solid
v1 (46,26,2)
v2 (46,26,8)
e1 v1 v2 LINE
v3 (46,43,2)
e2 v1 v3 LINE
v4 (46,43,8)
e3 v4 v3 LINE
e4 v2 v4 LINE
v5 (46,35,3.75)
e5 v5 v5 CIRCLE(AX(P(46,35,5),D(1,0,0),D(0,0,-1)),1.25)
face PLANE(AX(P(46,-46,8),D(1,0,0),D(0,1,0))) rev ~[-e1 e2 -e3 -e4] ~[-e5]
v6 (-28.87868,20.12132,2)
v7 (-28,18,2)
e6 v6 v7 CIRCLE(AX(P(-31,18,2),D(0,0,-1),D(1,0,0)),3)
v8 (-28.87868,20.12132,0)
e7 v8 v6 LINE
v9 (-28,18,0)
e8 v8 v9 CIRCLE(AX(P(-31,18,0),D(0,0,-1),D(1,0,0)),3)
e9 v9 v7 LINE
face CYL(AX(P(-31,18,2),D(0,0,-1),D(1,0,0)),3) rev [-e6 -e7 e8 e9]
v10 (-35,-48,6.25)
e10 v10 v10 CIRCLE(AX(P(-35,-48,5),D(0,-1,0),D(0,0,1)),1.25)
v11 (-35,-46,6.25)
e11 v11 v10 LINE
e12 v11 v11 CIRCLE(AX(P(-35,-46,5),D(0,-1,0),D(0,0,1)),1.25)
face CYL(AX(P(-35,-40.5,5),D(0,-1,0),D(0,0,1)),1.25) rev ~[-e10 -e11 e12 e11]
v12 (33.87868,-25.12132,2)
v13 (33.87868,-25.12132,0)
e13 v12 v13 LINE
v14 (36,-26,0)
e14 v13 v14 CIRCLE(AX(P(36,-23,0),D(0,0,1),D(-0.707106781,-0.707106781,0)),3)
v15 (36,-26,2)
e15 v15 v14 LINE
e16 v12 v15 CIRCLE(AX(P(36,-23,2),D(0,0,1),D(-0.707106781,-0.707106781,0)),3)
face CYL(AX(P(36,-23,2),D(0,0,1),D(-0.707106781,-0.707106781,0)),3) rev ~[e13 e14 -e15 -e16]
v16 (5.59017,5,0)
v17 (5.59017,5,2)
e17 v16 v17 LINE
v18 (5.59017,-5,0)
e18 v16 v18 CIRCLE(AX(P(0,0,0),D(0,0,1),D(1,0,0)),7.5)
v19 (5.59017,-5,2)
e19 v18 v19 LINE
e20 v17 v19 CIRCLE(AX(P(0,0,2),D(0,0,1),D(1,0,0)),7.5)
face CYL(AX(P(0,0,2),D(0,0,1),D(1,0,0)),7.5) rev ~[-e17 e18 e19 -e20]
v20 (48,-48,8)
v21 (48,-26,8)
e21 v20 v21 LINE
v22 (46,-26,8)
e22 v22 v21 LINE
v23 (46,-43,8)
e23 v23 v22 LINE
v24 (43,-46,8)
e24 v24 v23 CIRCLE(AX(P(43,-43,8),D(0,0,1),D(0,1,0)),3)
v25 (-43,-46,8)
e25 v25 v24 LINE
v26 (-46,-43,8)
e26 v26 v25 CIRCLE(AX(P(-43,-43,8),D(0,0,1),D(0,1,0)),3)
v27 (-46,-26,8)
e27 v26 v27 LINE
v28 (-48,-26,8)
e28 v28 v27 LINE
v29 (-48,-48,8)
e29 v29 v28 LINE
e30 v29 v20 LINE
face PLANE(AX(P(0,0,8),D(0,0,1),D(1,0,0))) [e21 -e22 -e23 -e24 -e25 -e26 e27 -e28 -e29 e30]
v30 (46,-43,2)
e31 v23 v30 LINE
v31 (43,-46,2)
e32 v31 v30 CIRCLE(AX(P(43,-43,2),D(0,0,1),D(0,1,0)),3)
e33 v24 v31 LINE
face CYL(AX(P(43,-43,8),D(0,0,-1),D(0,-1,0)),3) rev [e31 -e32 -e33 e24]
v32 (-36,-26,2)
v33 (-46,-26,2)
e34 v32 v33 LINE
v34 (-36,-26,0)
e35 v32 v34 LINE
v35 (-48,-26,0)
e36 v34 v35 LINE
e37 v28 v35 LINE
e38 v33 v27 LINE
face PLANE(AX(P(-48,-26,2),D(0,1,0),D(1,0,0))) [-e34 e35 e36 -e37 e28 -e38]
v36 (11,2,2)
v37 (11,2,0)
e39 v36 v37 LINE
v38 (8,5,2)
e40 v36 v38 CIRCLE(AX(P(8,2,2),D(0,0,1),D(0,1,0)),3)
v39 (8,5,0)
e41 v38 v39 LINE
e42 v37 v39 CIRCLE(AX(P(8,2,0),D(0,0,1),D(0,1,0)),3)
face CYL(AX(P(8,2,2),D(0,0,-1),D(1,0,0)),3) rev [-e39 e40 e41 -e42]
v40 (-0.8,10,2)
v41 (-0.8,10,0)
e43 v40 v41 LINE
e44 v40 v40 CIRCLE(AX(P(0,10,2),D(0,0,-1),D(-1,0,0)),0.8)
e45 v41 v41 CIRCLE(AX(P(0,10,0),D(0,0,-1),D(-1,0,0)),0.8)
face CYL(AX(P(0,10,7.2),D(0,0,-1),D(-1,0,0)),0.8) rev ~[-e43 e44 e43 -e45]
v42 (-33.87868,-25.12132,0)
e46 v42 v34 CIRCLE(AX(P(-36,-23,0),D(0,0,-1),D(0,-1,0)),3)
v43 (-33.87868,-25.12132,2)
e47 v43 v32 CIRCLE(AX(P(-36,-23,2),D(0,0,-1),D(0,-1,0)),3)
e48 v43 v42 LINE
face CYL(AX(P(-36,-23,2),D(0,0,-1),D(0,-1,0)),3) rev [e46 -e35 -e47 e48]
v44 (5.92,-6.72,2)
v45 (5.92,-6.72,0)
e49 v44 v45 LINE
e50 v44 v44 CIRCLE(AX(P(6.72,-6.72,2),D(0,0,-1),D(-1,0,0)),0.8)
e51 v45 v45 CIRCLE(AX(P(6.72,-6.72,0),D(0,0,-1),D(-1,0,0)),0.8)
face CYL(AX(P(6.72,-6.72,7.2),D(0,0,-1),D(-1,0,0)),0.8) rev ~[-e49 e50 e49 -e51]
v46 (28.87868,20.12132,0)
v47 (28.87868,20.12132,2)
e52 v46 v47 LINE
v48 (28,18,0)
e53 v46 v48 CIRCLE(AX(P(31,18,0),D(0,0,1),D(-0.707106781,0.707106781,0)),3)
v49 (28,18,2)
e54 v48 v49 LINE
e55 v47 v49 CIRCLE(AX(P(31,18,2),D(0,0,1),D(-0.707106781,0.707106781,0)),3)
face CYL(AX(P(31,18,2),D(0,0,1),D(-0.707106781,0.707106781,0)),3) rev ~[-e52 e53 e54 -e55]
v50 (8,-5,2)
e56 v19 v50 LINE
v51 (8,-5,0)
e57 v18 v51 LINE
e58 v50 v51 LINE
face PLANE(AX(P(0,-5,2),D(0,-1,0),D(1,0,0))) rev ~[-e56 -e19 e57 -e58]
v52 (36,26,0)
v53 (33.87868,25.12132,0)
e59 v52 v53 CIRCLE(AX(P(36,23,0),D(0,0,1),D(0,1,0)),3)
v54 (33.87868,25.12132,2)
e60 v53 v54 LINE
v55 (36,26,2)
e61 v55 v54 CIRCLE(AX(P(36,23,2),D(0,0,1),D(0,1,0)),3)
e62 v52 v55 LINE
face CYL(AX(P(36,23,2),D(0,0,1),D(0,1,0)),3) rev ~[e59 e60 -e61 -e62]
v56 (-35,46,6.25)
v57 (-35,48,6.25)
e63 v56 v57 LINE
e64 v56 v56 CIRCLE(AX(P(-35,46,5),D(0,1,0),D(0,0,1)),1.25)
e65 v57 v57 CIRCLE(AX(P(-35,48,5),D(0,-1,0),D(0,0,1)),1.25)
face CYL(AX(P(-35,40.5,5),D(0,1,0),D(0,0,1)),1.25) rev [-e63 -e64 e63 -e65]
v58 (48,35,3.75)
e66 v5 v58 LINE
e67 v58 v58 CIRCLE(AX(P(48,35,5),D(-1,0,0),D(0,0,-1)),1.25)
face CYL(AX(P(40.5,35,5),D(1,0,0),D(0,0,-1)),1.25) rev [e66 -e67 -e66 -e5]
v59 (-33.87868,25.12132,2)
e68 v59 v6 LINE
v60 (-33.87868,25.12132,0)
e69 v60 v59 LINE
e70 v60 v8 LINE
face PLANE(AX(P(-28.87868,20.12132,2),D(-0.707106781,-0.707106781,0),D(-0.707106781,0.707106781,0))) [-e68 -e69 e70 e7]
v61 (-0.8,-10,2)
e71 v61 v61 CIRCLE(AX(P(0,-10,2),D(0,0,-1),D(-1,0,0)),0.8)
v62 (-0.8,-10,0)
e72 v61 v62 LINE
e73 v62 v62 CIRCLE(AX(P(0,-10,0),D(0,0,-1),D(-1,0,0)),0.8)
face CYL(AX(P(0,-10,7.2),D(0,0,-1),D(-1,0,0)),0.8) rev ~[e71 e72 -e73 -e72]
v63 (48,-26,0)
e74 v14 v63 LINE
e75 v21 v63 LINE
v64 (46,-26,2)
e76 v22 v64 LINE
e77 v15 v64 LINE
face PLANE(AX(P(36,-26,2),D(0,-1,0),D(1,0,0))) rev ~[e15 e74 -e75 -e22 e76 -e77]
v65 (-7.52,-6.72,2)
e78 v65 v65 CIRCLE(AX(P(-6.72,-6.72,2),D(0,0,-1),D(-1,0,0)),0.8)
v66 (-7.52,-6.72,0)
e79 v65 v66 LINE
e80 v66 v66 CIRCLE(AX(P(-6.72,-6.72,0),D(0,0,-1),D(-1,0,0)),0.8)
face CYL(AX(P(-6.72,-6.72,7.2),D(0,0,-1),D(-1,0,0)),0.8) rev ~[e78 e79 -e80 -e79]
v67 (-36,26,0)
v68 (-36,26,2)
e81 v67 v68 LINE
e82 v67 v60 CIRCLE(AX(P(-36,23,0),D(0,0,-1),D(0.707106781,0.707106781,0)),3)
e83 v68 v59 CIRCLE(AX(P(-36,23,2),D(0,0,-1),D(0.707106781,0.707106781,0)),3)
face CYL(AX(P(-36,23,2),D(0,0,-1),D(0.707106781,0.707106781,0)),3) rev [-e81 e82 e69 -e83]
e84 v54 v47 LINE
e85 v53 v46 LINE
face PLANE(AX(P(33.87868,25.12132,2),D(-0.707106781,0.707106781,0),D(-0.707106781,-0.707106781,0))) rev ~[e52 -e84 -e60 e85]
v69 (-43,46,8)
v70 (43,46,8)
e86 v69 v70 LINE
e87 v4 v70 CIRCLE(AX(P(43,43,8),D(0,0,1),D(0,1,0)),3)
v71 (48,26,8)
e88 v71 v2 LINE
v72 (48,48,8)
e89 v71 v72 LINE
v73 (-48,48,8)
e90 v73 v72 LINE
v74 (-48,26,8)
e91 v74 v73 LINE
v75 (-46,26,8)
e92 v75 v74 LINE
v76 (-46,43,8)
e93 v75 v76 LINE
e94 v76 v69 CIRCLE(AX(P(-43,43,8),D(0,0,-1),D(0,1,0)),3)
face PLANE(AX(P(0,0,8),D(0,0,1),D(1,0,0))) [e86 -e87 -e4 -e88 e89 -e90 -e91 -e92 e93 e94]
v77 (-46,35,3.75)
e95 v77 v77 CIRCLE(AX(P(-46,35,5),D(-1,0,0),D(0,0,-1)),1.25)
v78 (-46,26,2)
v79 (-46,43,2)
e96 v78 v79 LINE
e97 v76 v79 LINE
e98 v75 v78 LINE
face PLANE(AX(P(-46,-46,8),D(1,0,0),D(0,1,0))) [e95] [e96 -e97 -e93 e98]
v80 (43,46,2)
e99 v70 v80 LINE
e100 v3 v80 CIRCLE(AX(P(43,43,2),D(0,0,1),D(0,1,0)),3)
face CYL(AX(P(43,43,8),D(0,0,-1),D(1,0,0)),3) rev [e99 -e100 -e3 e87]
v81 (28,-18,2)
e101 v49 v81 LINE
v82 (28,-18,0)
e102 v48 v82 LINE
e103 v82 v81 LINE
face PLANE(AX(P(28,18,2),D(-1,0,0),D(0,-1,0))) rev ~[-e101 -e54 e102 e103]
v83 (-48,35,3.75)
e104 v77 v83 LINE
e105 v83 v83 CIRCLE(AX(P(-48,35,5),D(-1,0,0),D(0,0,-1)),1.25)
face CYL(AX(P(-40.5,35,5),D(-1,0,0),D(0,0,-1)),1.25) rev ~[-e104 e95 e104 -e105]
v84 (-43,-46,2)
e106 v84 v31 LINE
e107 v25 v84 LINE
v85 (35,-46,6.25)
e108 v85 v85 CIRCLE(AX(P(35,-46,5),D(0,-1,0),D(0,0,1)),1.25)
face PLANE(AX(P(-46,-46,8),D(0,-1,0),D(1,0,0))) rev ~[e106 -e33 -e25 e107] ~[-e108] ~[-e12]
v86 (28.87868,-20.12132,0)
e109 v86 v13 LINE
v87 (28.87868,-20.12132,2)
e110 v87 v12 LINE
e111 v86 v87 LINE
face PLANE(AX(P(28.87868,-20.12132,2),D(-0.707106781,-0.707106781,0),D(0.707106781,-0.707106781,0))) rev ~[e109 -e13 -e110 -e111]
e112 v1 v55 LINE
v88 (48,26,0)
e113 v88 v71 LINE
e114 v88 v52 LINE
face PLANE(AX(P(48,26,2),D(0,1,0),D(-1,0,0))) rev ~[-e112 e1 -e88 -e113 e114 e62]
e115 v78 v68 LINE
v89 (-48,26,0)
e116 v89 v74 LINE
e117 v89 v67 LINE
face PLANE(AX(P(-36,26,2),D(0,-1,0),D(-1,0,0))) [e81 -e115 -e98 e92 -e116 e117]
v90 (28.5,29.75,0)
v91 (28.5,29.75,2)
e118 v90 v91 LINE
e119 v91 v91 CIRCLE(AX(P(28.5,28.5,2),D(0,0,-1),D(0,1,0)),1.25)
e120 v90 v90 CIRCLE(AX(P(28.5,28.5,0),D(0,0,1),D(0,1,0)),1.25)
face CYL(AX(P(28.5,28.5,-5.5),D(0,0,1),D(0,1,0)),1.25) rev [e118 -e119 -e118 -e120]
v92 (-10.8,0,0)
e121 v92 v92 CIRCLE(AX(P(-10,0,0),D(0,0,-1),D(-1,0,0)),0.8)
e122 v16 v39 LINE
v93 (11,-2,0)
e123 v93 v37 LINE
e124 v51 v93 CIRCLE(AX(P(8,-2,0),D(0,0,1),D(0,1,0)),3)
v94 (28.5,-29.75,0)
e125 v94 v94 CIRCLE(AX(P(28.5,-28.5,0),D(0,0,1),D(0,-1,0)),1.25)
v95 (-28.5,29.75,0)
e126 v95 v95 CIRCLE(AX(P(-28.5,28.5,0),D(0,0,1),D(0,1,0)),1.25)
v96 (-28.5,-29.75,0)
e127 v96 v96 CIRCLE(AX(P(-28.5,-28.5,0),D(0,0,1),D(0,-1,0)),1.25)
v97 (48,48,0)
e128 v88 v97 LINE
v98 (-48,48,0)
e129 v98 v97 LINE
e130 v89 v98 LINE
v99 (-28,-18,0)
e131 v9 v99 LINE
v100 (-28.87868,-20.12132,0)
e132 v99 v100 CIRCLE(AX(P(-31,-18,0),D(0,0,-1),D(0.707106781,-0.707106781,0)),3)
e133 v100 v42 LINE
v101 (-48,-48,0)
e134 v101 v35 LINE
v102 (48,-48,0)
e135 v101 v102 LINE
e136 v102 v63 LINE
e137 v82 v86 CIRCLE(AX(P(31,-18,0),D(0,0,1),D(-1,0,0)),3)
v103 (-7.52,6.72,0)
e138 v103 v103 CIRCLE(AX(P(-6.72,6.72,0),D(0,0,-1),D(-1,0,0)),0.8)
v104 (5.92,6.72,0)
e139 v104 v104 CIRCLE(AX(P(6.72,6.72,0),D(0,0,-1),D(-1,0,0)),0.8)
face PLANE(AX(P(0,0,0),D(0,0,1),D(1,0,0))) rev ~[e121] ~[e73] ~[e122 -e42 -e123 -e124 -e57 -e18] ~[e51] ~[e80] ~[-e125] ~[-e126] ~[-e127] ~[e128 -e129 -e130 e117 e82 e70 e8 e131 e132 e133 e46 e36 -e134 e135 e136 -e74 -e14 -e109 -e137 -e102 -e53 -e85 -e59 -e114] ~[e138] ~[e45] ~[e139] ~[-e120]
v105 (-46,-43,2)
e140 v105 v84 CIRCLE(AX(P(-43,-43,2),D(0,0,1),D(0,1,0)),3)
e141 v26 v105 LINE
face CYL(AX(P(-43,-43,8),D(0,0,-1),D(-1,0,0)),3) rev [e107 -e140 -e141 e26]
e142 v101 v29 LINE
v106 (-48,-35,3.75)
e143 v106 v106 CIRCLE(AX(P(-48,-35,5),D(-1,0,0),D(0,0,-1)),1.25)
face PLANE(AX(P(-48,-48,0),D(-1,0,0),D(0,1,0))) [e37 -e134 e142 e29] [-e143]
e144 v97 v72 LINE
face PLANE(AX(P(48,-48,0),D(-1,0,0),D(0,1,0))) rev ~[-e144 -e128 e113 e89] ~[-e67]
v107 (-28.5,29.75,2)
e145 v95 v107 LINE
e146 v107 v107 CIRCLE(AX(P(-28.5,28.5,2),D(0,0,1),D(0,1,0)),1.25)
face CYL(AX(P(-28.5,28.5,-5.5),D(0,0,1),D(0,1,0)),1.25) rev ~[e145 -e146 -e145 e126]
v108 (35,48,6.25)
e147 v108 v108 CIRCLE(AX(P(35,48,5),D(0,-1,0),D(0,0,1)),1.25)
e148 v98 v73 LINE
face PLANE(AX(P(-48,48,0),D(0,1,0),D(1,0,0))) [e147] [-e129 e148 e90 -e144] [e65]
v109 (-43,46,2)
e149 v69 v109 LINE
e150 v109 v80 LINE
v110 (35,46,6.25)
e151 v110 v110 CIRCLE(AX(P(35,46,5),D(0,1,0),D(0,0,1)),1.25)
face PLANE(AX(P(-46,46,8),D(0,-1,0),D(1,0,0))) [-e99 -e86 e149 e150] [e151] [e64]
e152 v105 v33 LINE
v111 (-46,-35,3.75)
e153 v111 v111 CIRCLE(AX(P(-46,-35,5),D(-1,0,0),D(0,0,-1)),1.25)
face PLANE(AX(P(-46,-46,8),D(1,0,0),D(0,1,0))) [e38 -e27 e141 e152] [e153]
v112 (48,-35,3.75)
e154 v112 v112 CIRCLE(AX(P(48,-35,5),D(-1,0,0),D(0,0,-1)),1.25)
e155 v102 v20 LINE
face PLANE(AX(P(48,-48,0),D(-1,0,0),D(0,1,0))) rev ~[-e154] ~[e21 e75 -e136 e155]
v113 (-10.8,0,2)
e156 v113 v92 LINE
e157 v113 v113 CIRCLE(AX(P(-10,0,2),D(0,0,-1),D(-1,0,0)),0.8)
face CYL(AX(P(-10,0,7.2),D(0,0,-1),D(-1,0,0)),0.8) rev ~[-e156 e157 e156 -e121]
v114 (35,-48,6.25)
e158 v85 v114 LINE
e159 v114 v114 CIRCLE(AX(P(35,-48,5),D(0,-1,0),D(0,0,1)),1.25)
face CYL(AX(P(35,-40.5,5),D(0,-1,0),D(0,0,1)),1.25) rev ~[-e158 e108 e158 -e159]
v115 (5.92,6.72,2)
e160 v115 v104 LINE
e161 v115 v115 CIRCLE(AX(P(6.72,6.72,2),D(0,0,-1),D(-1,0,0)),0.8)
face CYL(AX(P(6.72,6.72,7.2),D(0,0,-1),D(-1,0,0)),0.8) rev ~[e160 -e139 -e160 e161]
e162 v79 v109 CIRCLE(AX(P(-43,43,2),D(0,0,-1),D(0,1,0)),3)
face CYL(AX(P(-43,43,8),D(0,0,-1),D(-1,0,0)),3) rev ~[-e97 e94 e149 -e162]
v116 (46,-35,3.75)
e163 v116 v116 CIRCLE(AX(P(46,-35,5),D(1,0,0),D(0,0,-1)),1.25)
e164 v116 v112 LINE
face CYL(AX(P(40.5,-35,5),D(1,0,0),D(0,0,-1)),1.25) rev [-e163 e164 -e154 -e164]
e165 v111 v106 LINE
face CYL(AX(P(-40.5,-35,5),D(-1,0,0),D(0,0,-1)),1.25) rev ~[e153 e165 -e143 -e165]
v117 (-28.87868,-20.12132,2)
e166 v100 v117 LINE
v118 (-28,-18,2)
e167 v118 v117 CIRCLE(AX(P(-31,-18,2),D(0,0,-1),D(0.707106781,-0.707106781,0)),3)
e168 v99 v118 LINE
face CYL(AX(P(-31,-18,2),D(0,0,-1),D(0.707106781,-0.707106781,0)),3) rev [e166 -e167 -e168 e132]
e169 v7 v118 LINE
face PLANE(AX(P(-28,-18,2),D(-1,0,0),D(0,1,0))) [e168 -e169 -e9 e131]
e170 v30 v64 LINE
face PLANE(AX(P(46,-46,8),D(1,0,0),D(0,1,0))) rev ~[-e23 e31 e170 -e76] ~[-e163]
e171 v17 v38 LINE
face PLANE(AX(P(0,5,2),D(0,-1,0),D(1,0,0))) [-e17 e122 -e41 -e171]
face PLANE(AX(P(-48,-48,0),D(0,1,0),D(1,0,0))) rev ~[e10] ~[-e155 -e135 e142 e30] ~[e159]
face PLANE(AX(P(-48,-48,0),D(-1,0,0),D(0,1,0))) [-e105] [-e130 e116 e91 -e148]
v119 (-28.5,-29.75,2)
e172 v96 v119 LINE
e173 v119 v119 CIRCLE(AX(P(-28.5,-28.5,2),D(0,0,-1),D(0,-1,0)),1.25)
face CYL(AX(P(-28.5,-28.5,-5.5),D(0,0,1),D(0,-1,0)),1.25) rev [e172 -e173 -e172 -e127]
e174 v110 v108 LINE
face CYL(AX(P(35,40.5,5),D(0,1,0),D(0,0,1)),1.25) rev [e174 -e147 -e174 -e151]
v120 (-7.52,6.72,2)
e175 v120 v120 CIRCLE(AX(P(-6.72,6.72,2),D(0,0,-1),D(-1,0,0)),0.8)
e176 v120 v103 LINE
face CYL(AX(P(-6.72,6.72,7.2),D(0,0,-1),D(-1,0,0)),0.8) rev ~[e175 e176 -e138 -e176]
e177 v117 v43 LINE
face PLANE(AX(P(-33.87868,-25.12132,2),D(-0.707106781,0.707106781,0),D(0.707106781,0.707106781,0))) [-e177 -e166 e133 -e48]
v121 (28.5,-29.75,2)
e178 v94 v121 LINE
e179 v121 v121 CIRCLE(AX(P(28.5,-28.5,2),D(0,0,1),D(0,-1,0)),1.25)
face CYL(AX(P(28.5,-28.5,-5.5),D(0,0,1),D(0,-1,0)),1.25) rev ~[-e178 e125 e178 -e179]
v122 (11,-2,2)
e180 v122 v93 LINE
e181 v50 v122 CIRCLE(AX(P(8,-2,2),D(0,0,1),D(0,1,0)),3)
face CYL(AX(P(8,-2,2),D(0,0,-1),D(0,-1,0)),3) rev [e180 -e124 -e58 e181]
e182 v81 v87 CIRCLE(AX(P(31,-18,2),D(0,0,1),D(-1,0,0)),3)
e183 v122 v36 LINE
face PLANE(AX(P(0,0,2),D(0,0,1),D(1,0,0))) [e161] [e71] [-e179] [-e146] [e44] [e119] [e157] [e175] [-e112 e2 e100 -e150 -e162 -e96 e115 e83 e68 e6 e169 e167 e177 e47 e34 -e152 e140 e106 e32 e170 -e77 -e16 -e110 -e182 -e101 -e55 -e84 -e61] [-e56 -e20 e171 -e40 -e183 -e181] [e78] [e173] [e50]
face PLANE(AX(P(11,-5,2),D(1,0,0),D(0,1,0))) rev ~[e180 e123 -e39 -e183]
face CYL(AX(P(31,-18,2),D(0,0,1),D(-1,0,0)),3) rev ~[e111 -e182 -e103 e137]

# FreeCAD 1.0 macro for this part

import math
import FreeCAD as App
import Part
import Sketcher
from FreeCAD import Vector
Q = App.Units.Quantity


def edges_at(feature, points):
    """Names of the edges that pass closest to the given points."""
    edges = feature.Shape.Edges
    near = lambda p: min(range(len(edges)), key=lambda i: edges[i].distToShape(Part.Vertex(*p))[0])
    return sorted({f"Edge{near(p) + 1}" for p in points})

doc = App.newDocument("Part")
body = doc.addObject("PartDesign::Body", "Body")

sketch1 = body.newObject("Sketcher::SketchObject", "Sketch")
sketch1.AttachmentSupport = (doc.getObject("XY_Plane"), [""])
sketch1.MapMode = "FlatFace"
sketch1.addGeometry(Part.LineSegment(Vector(-48, 48, 0), Vector(-48, -48, 0)), False)
sketch1.addGeometry(Part.LineSegment(Vector(-48, -48, 0), Vector(48, -48, 0)), False)
sketch1.addGeometry(Part.LineSegment(Vector(48, -48, 0), Vector(48, 48, 0)), False)
sketch1.addGeometry(Part.LineSegment(Vector(48, 48, 0), Vector(-48, 48, 0)), False)
sketch1.addConstraint(Sketcher.Constraint("Coincident", 0, 2, 1, 1))
sketch1.addConstraint(Sketcher.Constraint("Coincident", 1, 2, 2, 1))
sketch1.addConstraint(Sketcher.Constraint("Coincident", 2, 2, 3, 1))
sketch1.addConstraint(Sketcher.Constraint("Coincident", 3, 2, 0, 1))
sketch1.addConstraint(Sketcher.Constraint("Vertical", 0))
sketch1.addConstraint(Sketcher.Constraint("Horizontal", 1))
sketch1.addConstraint(Sketcher.Constraint("Vertical", 2))
sketch1.addConstraint(Sketcher.Constraint("Horizontal", 3))
sketch1.addConstraint(Sketcher.Constraint("Symmetric", 0, 2, 2, 2, -1, 1))
sketch1.addConstraint(Sketcher.Constraint("Equal", 3, 0))
sketch1.addConstraint(Sketcher.Constraint("DistanceX", 1, 1, 1, 2, 96.0))
pad1 = body.newObject("PartDesign::Pad", "Pad")
pad1.Profile = sketch1
pad1.Length = 8

sketch2 = body.newObject("Sketcher::SketchObject", "Sketch001")
sketch2.AttachmentSupport = (doc.getObject("XY_Plane"), [""])
sketch2.MapMode = "FlatFace"
sketch2.AttachmentOffset = App.Placement(Vector(0, 0, 8), App.Rotation())
sketch2.addGeometry(Part.LineSegment(Vector(-46, 46, 0), Vector(-46, -46, 0)), False)
sketch2.addGeometry(Part.LineSegment(Vector(-46, -46, 0), Vector(46, -46, 0)), False)
sketch2.addGeometry(Part.LineSegment(Vector(46, -46, 0), Vector(46, 46, 0)), False)
sketch2.addGeometry(Part.LineSegment(Vector(46, 46, 0), Vector(-46, 46, 0)), False)
sketch2.addConstraint(Sketcher.Constraint("Coincident", 0, 2, 1, 1))
sketch2.addConstraint(Sketcher.Constraint("Coincident", 1, 2, 2, 1))
sketch2.addConstraint(Sketcher.Constraint("Coincident", 2, 2, 3, 1))
sketch2.addConstraint(Sketcher.Constraint("Coincident", 3, 2, 0, 1))
sketch2.addConstraint(Sketcher.Constraint("Vertical", 0))
sketch2.addConstraint(Sketcher.Constraint("Horizontal", 1))
sketch2.addConstraint(Sketcher.Constraint("Vertical", 2))
sketch2.addConstraint(Sketcher.Constraint("Horizontal", 3))
sketch2.addConstraint(Sketcher.Constraint("Symmetric", 0, 2, 2, 2, -1, 1))
sketch2.addConstraint(Sketcher.Constraint("Equal", 3, 0))
sketch2.addConstraint(Sketcher.Constraint("DistanceX", 1, 1, 1, 2, 92.0))
pocket1 = body.newObject("PartDesign::Pocket", "Pocket")
pocket1.Profile = sketch2
pocket1.Length = 6

sketch3 = body.newObject("Sketcher::SketchObject", "Sketch002")
sketch3.AttachmentSupport = (doc.getObject("XY_Plane"), [""])
sketch3.MapMode = "FlatFace"
sketch3.AttachmentOffset = App.Placement(Vector(0, 0, 2), App.Rotation())
sketch3.addGeometry(Part.LineSegment(Vector(-33.9, -25.1, 0), Vector(-28.9, -20.1, 0)), False)
sketch3.addGeometry(Part.ArcOfCircle(Part.Circle(Vector(-31, -18, 0), Vector(0, 0, 1), 3), math.radians(-45), math.radians(0)), False)
sketch3.addGeometry(Part.LineSegment(Vector(-28, -18, 0), Vector(-28, 18, 0)), False)
sketch3.addGeometry(Part.ArcOfCircle(Part.Circle(Vector(-31, 18, 0), Vector(0, 0, 1), 3), math.radians(0), math.radians(45)), False)
sketch3.addGeometry(Part.LineSegment(Vector(-28.9, 20.1, 0), Vector(-33.9, 25.1, 0)), False)
sketch3.addGeometry(Part.ArcOfCircle(Part.Circle(Vector(-36, 23, 0), Vector(0, 0, 1), 3), math.radians(45), math.radians(90)), False)
sketch3.addGeometry(Part.LineSegment(Vector(-36, 26, 0), Vector(-48, 26, 0)), False)
sketch3.addGeometry(Part.LineSegment(Vector(-48, 26, 0), Vector(-48, -26, 0)), False)
sketch3.addGeometry(Part.LineSegment(Vector(-48, -26, 0), Vector(-36, -26, 0)), False)
sketch3.addGeometry(Part.ArcOfCircle(Part.Circle(Vector(-36, -23, 0), Vector(0, 0, 1), 3), math.radians(-90), math.radians(-45)), False)
sketch3.addGeometry(Part.LineSegment(Vector(48, -26, 0), Vector(48, 26, 0)), False)
sketch3.addGeometry(Part.LineSegment(Vector(48, 26, 0), Vector(36, 26, 0)), False)
sketch3.addGeometry(Part.ArcOfCircle(Part.Circle(Vector(36, 23, 0), Vector(0, 0, 1), 3), math.radians(90), math.radians(135)), False)
sketch3.addGeometry(Part.LineSegment(Vector(33.9, 25.1, 0), Vector(28.9, 20.1, 0)), False)
sketch3.addGeometry(Part.ArcOfCircle(Part.Circle(Vector(31, 18, 0), Vector(0, 0, 1), 3), math.radians(135), math.radians(180)), False)
sketch3.addGeometry(Part.LineSegment(Vector(28, 18, 0), Vector(28, -18, 0)), False)
sketch3.addGeometry(Part.ArcOfCircle(Part.Circle(Vector(31, -18, 0), Vector(0, 0, 1), 3), math.radians(180), math.radians(225)), False)
sketch3.addGeometry(Part.LineSegment(Vector(28.9, -20.1, 0), Vector(33.9, -25.1, 0)), False)
sketch3.addGeometry(Part.ArcOfCircle(Part.Circle(Vector(36, -23, 0), Vector(0, 0, 1), 3), math.radians(-135), math.radians(-90)), False)
sketch3.addGeometry(Part.LineSegment(Vector(36, -26, 0), Vector(48, -26, 0)), False)
sketch3.addConstraint(Sketcher.Constraint("Tangent", 0, 2, 1, 1))
sketch3.addConstraint(Sketcher.Constraint("Tangent", 1, 2, 2, 1))
sketch3.addConstraint(Sketcher.Constraint("Tangent", 2, 2, 3, 1))
sketch3.addConstraint(Sketcher.Constraint("Tangent", 3, 2, 4, 1))
sketch3.addConstraint(Sketcher.Constraint("Tangent", 4, 2, 5, 1))
sketch3.addConstraint(Sketcher.Constraint("Tangent", 5, 2, 6, 1))
sketch3.addConstraint(Sketcher.Constraint("Coincident", 6, 2, 7, 1))
sketch3.addConstraint(Sketcher.Constraint("Coincident", 7, 2, 8, 1))
sketch3.addConstraint(Sketcher.Constraint("Tangent", 8, 2, 9, 1))
sketch3.addConstraint(Sketcher.Constraint("Tangent", 9, 2, 0, 1))
sketch3.addConstraint(Sketcher.Constraint("Coincident", 10, 2, 11, 1))
sketch3.addConstraint(Sketcher.Constraint("Tangent", 11, 2, 12, 1))
sketch3.addConstraint(Sketcher.Constraint("Tangent", 12, 2, 13, 1))
sketch3.addConstraint(Sketcher.Constraint("Tangent", 13, 2, 14, 1))
sketch3.addConstraint(Sketcher.Constraint("Tangent", 14, 2, 15, 1))
sketch3.addConstraint(Sketcher.Constraint("Tangent", 15, 2, 16, 1))
sketch3.addConstraint(Sketcher.Constraint("Tangent", 16, 2, 17, 1))
sketch3.addConstraint(Sketcher.Constraint("Tangent", 17, 2, 18, 1))
sketch3.addConstraint(Sketcher.Constraint("Tangent", 18, 2, 19, 1))
sketch3.addConstraint(Sketcher.Constraint("Coincident", 19, 2, 10, 1))
sketch3.addConstraint(Sketcher.Constraint("Vertical", 2))
sketch3.addConstraint(Sketcher.Constraint("Horizontal", 6))
sketch3.addConstraint(Sketcher.Constraint("Vertical", 7))
sketch3.addConstraint(Sketcher.Constraint("Horizontal", 8))
sketch3.addConstraint(Sketcher.Constraint("Vertical", 10))
sketch3.addConstraint(Sketcher.Constraint("Horizontal", 11))
sketch3.addConstraint(Sketcher.Constraint("Vertical", 15))
sketch3.addConstraint(Sketcher.Constraint("Horizontal", 19))
sketch3.addConstraint(Sketcher.Constraint("Equal", 1, 3))
sketch3.addConstraint(Sketcher.Constraint("Equal", 3, 5))
sketch3.addConstraint(Sketcher.Constraint("Equal", 5, 9))
sketch3.addConstraint(Sketcher.Constraint("Equal", 9, 12))
sketch3.addConstraint(Sketcher.Constraint("Equal", 12, 14))
sketch3.addConstraint(Sketcher.Constraint("Equal", 14, 16))
sketch3.addConstraint(Sketcher.Constraint("Equal", 16, 18))
sketch3.addConstraint(Sketcher.Constraint("Symmetric", 9, 3, 12, 3, -1, 1))
sketch3.addConstraint(Sketcher.Constraint("Symmetric", 1, 3, 14, 3, -1, 1))
sketch3.addConstraint(Sketcher.Constraint("Symmetric", 5, 3, 18, 3, -1, 1))
sketch3.addConstraint(Sketcher.Constraint("Symmetric", 5, 3, 12, 3, -2))
sketch3.addConstraint(Sketcher.Constraint("Perpendicular", 0, 4))
sketch3.addConstraint(Sketcher.Constraint("Perpendicular", 13, 17))
sketch3.addConstraint(Sketcher.Constraint("Horizontal", 3, 3, 14, 3))
sketch3.addConstraint(Sketcher.Constraint("Equal", 8, 11))
sketch3.addConstraint(Sketcher.Constraint("Radius", 1, 3.0))
sketch3.addConstraint(Sketcher.Constraint("DistanceX", 6, 2, 6, 1, 12.0))
sketch3.addConstraint(Sketcher.Constraint("DistanceY", 2, 1, 2, 2, 36.0))
sketch3.addConstraint(Sketcher.Constraint("DistanceY", 7, 2, 7, 1, 52.0))
sketch3.addConstraint(Sketcher.Constraint("DistanceX", 1, 3, -1, 1, 31.0))
pocket2 = body.newObject("PartDesign::Pocket", "Pocket001")
pocket2.Profile = sketch3
pocket2.Length = 12
pocket2.Midplane = True

sketch4 = body.newObject("Sketcher::SketchObject", "Sketch003")
sketch4.AttachmentSupport = (doc.getObject("XY_Plane"), [""])
sketch4.MapMode = "FlatFace"
sketch4.AttachmentOffset = App.Placement(Vector(0, 0, 2), App.Rotation())
sketch4.addGeometry(Part.Circle(Vector(0, 0, 0), Vector(0, 0, 1), 8), False)
sketch4.addConstraint(Sketcher.Constraint("Coincident", 0, 3, -1, 1))
sketch4.addConstraint(Sketcher.Constraint("Diameter", 0, 15.0))
pocket3 = body.newObject("PartDesign::Pocket", "Pocket002")
pocket3.Profile = sketch4
pocket3.Length = 6
doc.recompute()

fillet = body.newObject("PartDesign::Fillet", "Fillet")
fillet.Base = (pocket3, edges_at(pocket3, [
    (-46, -46, 5),
    (-46, 46, 5),
    (46, 46, 5),
    (46, -46, 5),
]))
fillet.Radius = 3

sketch5 = body.newObject("Sketcher::SketchObject", "Sketch004")
sketch5.AttachmentSupport = (doc.getObject("XY_Plane"), [""])
sketch5.MapMode = "FlatFace"
sketch5.AttachmentOffset = App.Placement(Vector(0, 0, 2), App.Rotation())
sketch5.addGeometry(Part.LineSegment(Vector(0, 5, 0), Vector(0, -5, 0)), False)
sketch5.addGeometry(Part.LineSegment(Vector(0, -5, 0), Vector(11, -5, 0)), False)
sketch5.addGeometry(Part.LineSegment(Vector(11, -5, 0), Vector(11, 5, 0)), False)
sketch5.addGeometry(Part.LineSegment(Vector(11, 5, 0), Vector(0, 5, 0)), False)
sketch5.addConstraint(Sketcher.Constraint("Coincident", 0, 2, 1, 1))
sketch5.addConstraint(Sketcher.Constraint("Coincident", 1, 2, 2, 1))
sketch5.addConstraint(Sketcher.Constraint("Coincident", 2, 2, 3, 1))
sketch5.addConstraint(Sketcher.Constraint("Coincident", 3, 2, 0, 1))
sketch5.addConstraint(Sketcher.Constraint("Vertical", 0))
sketch5.addConstraint(Sketcher.Constraint("Horizontal", 1))
sketch5.addConstraint(Sketcher.Constraint("Vertical", 2))
sketch5.addConstraint(Sketcher.Constraint("Horizontal", 3))
sketch5.addConstraint(Sketcher.Constraint("Symmetric", 0, 2, 3, 2, -1, 1))
sketch5.addConstraint(Sketcher.Constraint("DistanceX", 1, 1, 1, 2, 11.0))
sketch5.addConstraint(Sketcher.Constraint("DistanceY", 0, 2, 0, 1, 10.0))
pocket4 = body.newObject("PartDesign::Pocket", "Pocket003")
pocket4.Profile = sketch5
pocket4.Length = 2
doc.recompute()

fillet2 = body.newObject("PartDesign::Fillet", "Fillet001")
fillet2.Base = (pocket4, edges_at(pocket4, [(11, -5, 1), (11, 5, 1)]))
fillet2.Radius = 3

sketch6 = body.newObject("Sketcher::SketchObject", "Sketch005")
sketch6.AttachmentSupport = (doc.getObject("XZ_Plane"), [""])
sketch6.MapMode = "FlatFace"
sketch6.AttachmentOffset = App.Placement(Vector(0, 0, 35), App.Rotation())
sketch6.addGeometry(Part.LineSegment(Vector(39.7, 5, 0), Vector(48, 5, 0)), False)
sketch6.addGeometry(Part.LineSegment(Vector(48, 5, 0), Vector(48, 3.8, 0)), False)
sketch6.addGeometry(Part.LineSegment(Vector(48, 3.8, 0), Vector(40.5, 3.8, 0)), False)
sketch6.addGeometry(Part.LineSegment(Vector(40.5, 3.8, 0), Vector(39.7, 5, 0)), False)
sketch6.addGeometry(Part.LineSegment(Vector(48, 5, 0), Vector(39.7, 5, 0)), True)
sketch6.addConstraint(Sketcher.Constraint("Coincident", 0, 2, 1, 1))
sketch6.addConstraint(Sketcher.Constraint("Coincident", 1, 2, 2, 1))
sketch6.addConstraint(Sketcher.Constraint("Coincident", 2, 2, 3, 1))
sketch6.addConstraint(Sketcher.Constraint("Coincident", 3, 2, 0, 1))
sketch6.addConstraint(Sketcher.Constraint("Horizontal", 0))
sketch6.addConstraint(Sketcher.Constraint("Vertical", 1))
sketch6.addConstraint(Sketcher.Constraint("Horizontal", 2))
sketch6.addConstraint(Sketcher.Constraint("Horizontal", 4))
sketch6.addConstraint(Sketcher.Constraint("Coincident", 4, 1, 0, 2))
sketch6.addConstraint(Sketcher.Constraint("Equal", 0, 4))
sketch6.addConstraint(Sketcher.Constraint("Angle", 3, Q("121 deg")))
sketch6.addConstraint(Sketcher.Constraint("DistanceX", 2, 2, 2, 1, 7.5))
sketch6.addConstraint(Sketcher.Constraint("DistanceX", -1, 1, 0, 2, 48.0))
sketch6.addConstraint(Sketcher.Constraint("DistanceY", -1, 1, 0, 2, 5.0))
sketch6.addConstraint(Sketcher.Constraint("DistanceY", 1, 2, 1, 1, 1.25))
groove = body.newObject("PartDesign::Groove", "Groove")
groove.Profile = sketch6
groove.ReferenceAxis = (sketch6, ["Axis0"])
groove.Angle = 360
doc.recompute()

linearpattern = body.newObject("PartDesign::LinearPattern", "LinearPattern")
linearpattern.Originals = [groove]
linearpattern.Direction = (doc.getObject("Y_Axis"), [""])
linearpattern.Mode = "offset"
linearpattern.Offset = 70
linearpattern.Occurrences = 2
body.Tip = linearpattern

sketch7 = body.newObject("Sketcher::SketchObject", "Sketch006")
sketch7.AttachmentSupport = (doc.getObject("YZ_Plane"), [""])
sketch7.MapMode = "FlatFace"
sketch7.AttachmentOffset = App.Placement(Vector(0, 0, 35), App.Rotation())
sketch7.addGeometry(Part.LineSegment(Vector(39.7, 5, 0), Vector(48, 5, 0)), False)
sketch7.addGeometry(Part.LineSegment(Vector(48, 5, 0), Vector(48, 6.2, 0)), False)
sketch7.addGeometry(Part.LineSegment(Vector(48, 6.2, 0), Vector(40.5, 6.2, 0)), False)
sketch7.addGeometry(Part.LineSegment(Vector(40.5, 6.2, 0), Vector(39.7, 5, 0)), False)
sketch7.addGeometry(Part.LineSegment(Vector(48, 5, 0), Vector(39.7, 5, 0)), True)
sketch7.addConstraint(Sketcher.Constraint("Coincident", 0, 2, 1, 1))
sketch7.addConstraint(Sketcher.Constraint("Coincident", 1, 2, 2, 1))
sketch7.addConstraint(Sketcher.Constraint("Coincident", 2, 2, 3, 1))
sketch7.addConstraint(Sketcher.Constraint("Coincident", 3, 2, 0, 1))
sketch7.addConstraint(Sketcher.Constraint("Horizontal", 0))
sketch7.addConstraint(Sketcher.Constraint("Vertical", 1))
sketch7.addConstraint(Sketcher.Constraint("Horizontal", 2))
sketch7.addConstraint(Sketcher.Constraint("Horizontal", 4))
sketch7.addConstraint(Sketcher.Constraint("Coincident", 4, 1, 0, 2))
sketch7.addConstraint(Sketcher.Constraint("Equal", 0, 4))
sketch7.addConstraint(Sketcher.Constraint("Angle", 3, Q("-121 deg")))
sketch7.addConstraint(Sketcher.Constraint("DistanceX", 2, 2, 2, 1, 7.5))
sketch7.addConstraint(Sketcher.Constraint("DistanceX", -1, 1, 0, 2, 48.0))
sketch7.addConstraint(Sketcher.Constraint("DistanceY", -1, 1, 0, 2, 5.0))
sketch7.addConstraint(Sketcher.Constraint("DistanceY", 1, 1, 1, 2, 1.25))
groove2 = body.newObject("PartDesign::Groove", "Groove001")
groove2.Profile = sketch7
groove2.ReferenceAxis = (sketch7, ["Axis0"])
groove2.Angle = 360
doc.recompute()

linearpattern2 = body.newObject("PartDesign::LinearPattern", "LinearPattern001")
linearpattern2.Originals = [groove2]
linearpattern2.Direction = (doc.getObject("X_Axis"), [""])
linearpattern2.Mode = "offset"
linearpattern2.Offset = 70
linearpattern2.Occurrences = 2
linearpattern2.Reversed = True
body.Tip = linearpattern2
doc.recompute()

mirrored = body.newObject("PartDesign::Mirrored", "Mirrored")
mirrored.Originals = [groove]
mirrored.MirrorPlane = (doc.getObject("YZ_Plane"), [""])
body.Tip = mirrored

sketch8 = body.newObject("Sketcher::SketchObject", "Sketch007")
sketch8.AttachmentSupport = (doc.getObject("XZ_Plane"), [""])
sketch8.MapMode = "FlatFace"
sketch8.AttachmentOffset = App.Placement(Vector(0, 0, -35), App.Rotation())
sketch8.addGeometry(Part.LineSegment(Vector(-48, 5, 0), Vector(-39.7, 5, 0)), False)
sketch8.addGeometry(Part.LineSegment(Vector(-39.7, 5, 0), Vector(-40.5, 3.8, 0)), False)
sketch8.addGeometry(Part.LineSegment(Vector(-40.5, 3.8, 0), Vector(-48, 3.8, 0)), False)
sketch8.addGeometry(Part.LineSegment(Vector(-48, 3.8, 0), Vector(-48, 5, 0)), False)
sketch8.addGeometry(Part.LineSegment(Vector(-39.7, 5, 0), Vector(-48, 5, 0)), True)
sketch8.addConstraint(Sketcher.Constraint("Coincident", 0, 2, 1, 1))
sketch8.addConstraint(Sketcher.Constraint("Coincident", 1, 2, 2, 1))
sketch8.addConstraint(Sketcher.Constraint("Coincident", 2, 2, 3, 1))
sketch8.addConstraint(Sketcher.Constraint("Coincident", 3, 2, 0, 1))
sketch8.addConstraint(Sketcher.Constraint("Horizontal", 0))
sketch8.addConstraint(Sketcher.Constraint("Horizontal", 2))
sketch8.addConstraint(Sketcher.Constraint("Vertical", 3))
sketch8.addConstraint(Sketcher.Constraint("Horizontal", 4))
sketch8.addConstraint(Sketcher.Constraint("Coincident", 4, 1, 0, 2))
sketch8.addConstraint(Sketcher.Constraint("Vertical", 2, 2, 4, 2))
sketch8.addConstraint(Sketcher.Constraint("Angle", 1, Q("-121 deg")))
sketch8.addConstraint(Sketcher.Constraint("DistanceX", 2, 2, 2, 1, 7.5))
sketch8.addConstraint(Sketcher.Constraint("DistanceY", -1, 1, 0, 2, 5.0))
sketch8.addConstraint(Sketcher.Constraint("DistanceX", 2, 2, -1, 1, 48.0))
sketch8.addConstraint(Sketcher.Constraint("DistanceY", 3, 1, 3, 2, 1.25))
groove3 = body.newObject("PartDesign::Groove", "Groove002")
groove3.Profile = sketch8
groove3.ReferenceAxis = (sketch8, ["Axis0"])
groove3.Angle = 360
doc.recompute()

mirrored2 = body.newObject("PartDesign::Mirrored", "Mirrored001")
mirrored2.Originals = [groove2]
mirrored2.MirrorPlane = (doc.getObject("XZ_Plane"), [""])
body.Tip = mirrored2

sketch9 = body.newObject("Sketcher::SketchObject", "Sketch008")
sketch9.AttachmentSupport = (doc.getObject("YZ_Plane"), [""])
sketch9.MapMode = "FlatFace"
sketch9.AttachmentOffset = App.Placement(Vector(0, 0, -35), App.Rotation())
sketch9.addGeometry(Part.LineSegment(Vector(-48, 5, 0), Vector(-39.7, 5, 0)), False)
sketch9.addGeometry(Part.LineSegment(Vector(-39.7, 5, 0), Vector(-40.5, 6.2, 0)), False)
sketch9.addGeometry(Part.LineSegment(Vector(-40.5, 6.2, 0), Vector(-48, 6.2, 0)), False)
sketch9.addGeometry(Part.LineSegment(Vector(-48, 6.2, 0), Vector(-48, 5, 0)), False)
sketch9.addGeometry(Part.LineSegment(Vector(-39.7, 5, 0), Vector(-48, 5, 0)), True)
sketch9.addConstraint(Sketcher.Constraint("Coincident", 0, 2, 1, 1))
sketch9.addConstraint(Sketcher.Constraint("Coincident", 1, 2, 2, 1))
sketch9.addConstraint(Sketcher.Constraint("Coincident", 2, 2, 3, 1))
sketch9.addConstraint(Sketcher.Constraint("Coincident", 3, 2, 0, 1))
sketch9.addConstraint(Sketcher.Constraint("Horizontal", 0))
sketch9.addConstraint(Sketcher.Constraint("Horizontal", 2))
sketch9.addConstraint(Sketcher.Constraint("Vertical", 3))
sketch9.addConstraint(Sketcher.Constraint("Horizontal", 4))
sketch9.addConstraint(Sketcher.Constraint("Coincident", 4, 1, 0, 2))
sketch9.addConstraint(Sketcher.Constraint("Vertical", 2, 2, 4, 2))
sketch9.addConstraint(Sketcher.Constraint("Angle", 1, Q("121 deg")))
sketch9.addConstraint(Sketcher.Constraint("DistanceX", 2, 2, 2, 1, 7.5))
sketch9.addConstraint(Sketcher.Constraint("DistanceY", -1, 1, 0, 2, 5.0))
sketch9.addConstraint(Sketcher.Constraint("DistanceX", 2, 2, -1, 1, 48.0))
sketch9.addConstraint(Sketcher.Constraint("DistanceY", 3, 2, 3, 1, 1.25))
groove4 = body.newObject("PartDesign::Groove", "Groove003")
groove4.Profile = sketch9
groove4.ReferenceAxis = (sketch9, ["Axis0"])
groove4.Angle = 360

sketch10 = body.newObject("Sketcher::SketchObject", "Sketch009")
sketch10.AttachmentSupport = (doc.getObject("YZ_Plane"), [""])
sketch10.MapMode = "FlatFace"
sketch10.AttachmentOffset = App.Placement(Vector(0, 0, -28.5), App.Rotation())
sketch10.addGeometry(Part.LineSegment(Vector(-28.5, -6.3, 0), Vector(-28.5, 2, 0)), False)
sketch10.addGeometry(Part.LineSegment(Vector(-28.5, 2, 0), Vector(-29.8, 2, 0)), False)
sketch10.addGeometry(Part.LineSegment(Vector(-29.8, 2, 0), Vector(-29.8, -5.5, 0)), False)
sketch10.addGeometry(Part.LineSegment(Vector(-29.8, -5.5, 0), Vector(-28.5, -6.3, 0)), False)
sketch10.addGeometry(Part.LineSegment(Vector(-28.5, 2, 0), Vector(-28.5, -6.3, 0)), True)
sketch10.addConstraint(Sketcher.Constraint("Coincident", 0, 2, 1, 1))
sketch10.addConstraint(Sketcher.Constraint("Coincident", 1, 2, 2, 1))
sketch10.addConstraint(Sketcher.Constraint("Coincident", 2, 2, 3, 1))
sketch10.addConstraint(Sketcher.Constraint("Coincident", 3, 2, 0, 1))
sketch10.addConstraint(Sketcher.Constraint("Vertical", 0))
sketch10.addConstraint(Sketcher.Constraint("Horizontal", 1))
sketch10.addConstraint(Sketcher.Constraint("Vertical", 2))
sketch10.addConstraint(Sketcher.Constraint("Vertical", 4))
sketch10.addConstraint(Sketcher.Constraint("Coincident", 4, 1, 0, 2))
sketch10.addConstraint(Sketcher.Constraint("Equal", 0, 4))
sketch10.addConstraint(Sketcher.Constraint("Angle", 3, Q("-31 deg")))
sketch10.addConstraint(Sketcher.Constraint("DistanceY", 2, 2, 2, 1, 7.5))
sketch10.addConstraint(Sketcher.Constraint("DistanceY", -1, 1, 0, 2, 2.0))
sketch10.addConstraint(Sketcher.Constraint("DistanceX", 1, 2, 1, 1, 1.25))
sketch10.addConstraint(Sketcher.Constraint("DistanceX", 0, 2, -1, 1, 28.5))
groove5 = body.newObject("PartDesign::Groove", "Groove004")
groove5.Profile = sketch10
groove5.ReferenceAxis = (sketch10, ["Axis0"])
groove5.Angle = 360
doc.recompute()

mirrored3 = body.newObject("PartDesign::Mirrored", "Mirrored002")
mirrored3.Originals = [groove5]
mirrored3.MirrorPlane = (doc.getObject("YZ_Plane"), [""])
body.Tip = mirrored3
doc.recompute()

mirrored4 = body.newObject("PartDesign::Mirrored", "Mirrored003")
mirrored4.Originals = [groove5]
mirrored4.MirrorPlane = (doc.getObject("XZ_Plane"), [""])
body.Tip = mirrored4

sketch11 = body.newObject("Sketcher::SketchObject", "Sketch010")
sketch11.AttachmentSupport = (doc.getObject("YZ_Plane"), [""])
sketch11.MapMode = "FlatFace"
sketch11.AttachmentOffset = App.Placement(Vector(0, 0, 28.5), App.Rotation())
sketch11.addGeometry(Part.LineSegment(Vector(28.5, -6.3, 0), Vector(28.5, 2, 0)), False)
sketch11.addGeometry(Part.LineSegment(Vector(28.5, 2, 0), Vector(29.8, 2, 0)), False)
sketch11.addGeometry(Part.LineSegment(Vector(29.8, 2, 0), Vector(29.8, -5.5, 0)), False)
sketch11.addGeometry(Part.LineSegment(Vector(29.8, -5.5, 0), Vector(28.5, -6.3, 0)), False)
sketch11.addGeometry(Part.LineSegment(Vector(28.5, 2, 0), Vector(28.5, -6.3, 0)), True)
sketch11.addConstraint(Sketcher.Constraint("Coincident", 0, 2, 1, 1))
sketch11.addConstraint(Sketcher.Constraint("Coincident", 1, 2, 2, 1))
sketch11.addConstraint(Sketcher.Constraint("Coincident", 2, 2, 3, 1))
sketch11.addConstraint(Sketcher.Constraint("Coincident", 3, 2, 0, 1))
sketch11.addConstraint(Sketcher.Constraint("Vertical", 0))
sketch11.addConstraint(Sketcher.Constraint("Horizontal", 1))
sketch11.addConstraint(Sketcher.Constraint("Vertical", 2))
sketch11.addConstraint(Sketcher.Constraint("Vertical", 4))
sketch11.addConstraint(Sketcher.Constraint("Coincident", 4, 1, 0, 2))
sketch11.addConstraint(Sketcher.Constraint("Equal", 0, 4))
sketch11.addConstraint(Sketcher.Constraint("Angle", 3, Q("-149 deg")))
sketch11.addConstraint(Sketcher.Constraint("DistanceY", 2, 2, 2, 1, 7.5))
sketch11.addConstraint(Sketcher.Constraint("DistanceY", -1, 1, 0, 2, 2.0))
sketch11.addConstraint(Sketcher.Constraint("DistanceX", 1, 1, 1, 2, 1.25))
sketch11.addConstraint(Sketcher.Constraint("DistanceX", -1, 1, 0, 2, 28.5))
groove6 = body.newObject("PartDesign::Groove", "Groove005")
groove6.Profile = sketch11
groove6.ReferenceAxis = (sketch11, ["Axis0"])
groove6.Angle = 360

sketch12 = body.newObject("Sketcher::SketchObject", "Sketch011")
sketch12.AttachmentSupport = (doc.getObject("XY_Plane"), [""])
sketch12.MapMode = "FlatFace"
sketch12.AttachmentOffset = App.Placement(Vector(0, 0, 2), App.Rotation())
sketch12.addGeometry(Part.Circle(Vector(6.7, -6.7, 0), Vector(0, 0, 1), 0.8), False)
sketch12.addGeometry(Part.Circle(Vector(0, -10, 0), Vector(0, 0, 1), 0.8), False)
sketch12.addGeometry(Part.Circle(Vector(-6.7, -6.7, 0), Vector(0, 0, 1), 0.8), False)
sketch12.addGeometry(Part.Circle(Vector(-10, 0, 0), Vector(0, 0, 1), 0.8), False)
sketch12.addGeometry(Part.Circle(Vector(-6.7, 6.7, 0), Vector(0, 0, 1), 0.8), False)
sketch12.addGeometry(Part.Circle(Vector(0, 10, 0), Vector(0, 0, 1), 0.8), False)
sketch12.addGeometry(Part.Circle(Vector(6.7, 6.7, 0), Vector(0, 0, 1), 0.8), False)
sketch12.addConstraint(Sketcher.Constraint("Equal", 0, 1))
sketch12.addConstraint(Sketcher.Constraint("Equal", 1, 2))
sketch12.addConstraint(Sketcher.Constraint("Equal", 2, 3))
sketch12.addConstraint(Sketcher.Constraint("Equal", 3, 4))
sketch12.addConstraint(Sketcher.Constraint("Equal", 4, 5))
sketch12.addConstraint(Sketcher.Constraint("Equal", 5, 6))
sketch12.addConstraint(Sketcher.Constraint("Symmetric", 0, 3, 4, 3, -1, 1))
sketch12.addConstraint(Sketcher.Constraint("Symmetric", 1, 3, 5, 3, -1, 1))
sketch12.addConstraint(Sketcher.Constraint("Symmetric", 2, 3, 6, 3, -1, 1))
sketch12.addConstraint(Sketcher.Constraint("Symmetric", 0, 3, 2, 3, -2))
sketch12.addConstraint(Sketcher.Constraint("PointOnObject", 1, 3, -2))
sketch12.addConstraint(Sketcher.Constraint("PointOnObject", 3, 3, -1))
sketch12.addConstraint(Sketcher.Constraint("Diameter", 0, 1.6))
sketch12.addConstraint(Sketcher.Constraint("DistanceY", 1, 3, -1, 1, 10.0))
sketch12.addConstraint(Sketcher.Constraint("DistanceX", 3, 3, -1, 1, 10.0))
sketch12.addConstraint(Sketcher.Constraint("DistanceX", -1, 1, 0, 3, 6.72))
sketch12.addConstraint(Sketcher.Constraint("DistanceY", 0, 3, -1, 1, 6.72))
doc.recompute()
hole = body.newObject("PartDesign::Hole", "Hole")
hole.Profile = sketch12
hole.ThreadType = "None"
hole.Diameter = 1.6
hole.DepthType = "Dimension"
hole.Depth = 5.2
hole.DrillPoint = "Angled"
hole.DrillPointAngle = 118

doc.recompute()
